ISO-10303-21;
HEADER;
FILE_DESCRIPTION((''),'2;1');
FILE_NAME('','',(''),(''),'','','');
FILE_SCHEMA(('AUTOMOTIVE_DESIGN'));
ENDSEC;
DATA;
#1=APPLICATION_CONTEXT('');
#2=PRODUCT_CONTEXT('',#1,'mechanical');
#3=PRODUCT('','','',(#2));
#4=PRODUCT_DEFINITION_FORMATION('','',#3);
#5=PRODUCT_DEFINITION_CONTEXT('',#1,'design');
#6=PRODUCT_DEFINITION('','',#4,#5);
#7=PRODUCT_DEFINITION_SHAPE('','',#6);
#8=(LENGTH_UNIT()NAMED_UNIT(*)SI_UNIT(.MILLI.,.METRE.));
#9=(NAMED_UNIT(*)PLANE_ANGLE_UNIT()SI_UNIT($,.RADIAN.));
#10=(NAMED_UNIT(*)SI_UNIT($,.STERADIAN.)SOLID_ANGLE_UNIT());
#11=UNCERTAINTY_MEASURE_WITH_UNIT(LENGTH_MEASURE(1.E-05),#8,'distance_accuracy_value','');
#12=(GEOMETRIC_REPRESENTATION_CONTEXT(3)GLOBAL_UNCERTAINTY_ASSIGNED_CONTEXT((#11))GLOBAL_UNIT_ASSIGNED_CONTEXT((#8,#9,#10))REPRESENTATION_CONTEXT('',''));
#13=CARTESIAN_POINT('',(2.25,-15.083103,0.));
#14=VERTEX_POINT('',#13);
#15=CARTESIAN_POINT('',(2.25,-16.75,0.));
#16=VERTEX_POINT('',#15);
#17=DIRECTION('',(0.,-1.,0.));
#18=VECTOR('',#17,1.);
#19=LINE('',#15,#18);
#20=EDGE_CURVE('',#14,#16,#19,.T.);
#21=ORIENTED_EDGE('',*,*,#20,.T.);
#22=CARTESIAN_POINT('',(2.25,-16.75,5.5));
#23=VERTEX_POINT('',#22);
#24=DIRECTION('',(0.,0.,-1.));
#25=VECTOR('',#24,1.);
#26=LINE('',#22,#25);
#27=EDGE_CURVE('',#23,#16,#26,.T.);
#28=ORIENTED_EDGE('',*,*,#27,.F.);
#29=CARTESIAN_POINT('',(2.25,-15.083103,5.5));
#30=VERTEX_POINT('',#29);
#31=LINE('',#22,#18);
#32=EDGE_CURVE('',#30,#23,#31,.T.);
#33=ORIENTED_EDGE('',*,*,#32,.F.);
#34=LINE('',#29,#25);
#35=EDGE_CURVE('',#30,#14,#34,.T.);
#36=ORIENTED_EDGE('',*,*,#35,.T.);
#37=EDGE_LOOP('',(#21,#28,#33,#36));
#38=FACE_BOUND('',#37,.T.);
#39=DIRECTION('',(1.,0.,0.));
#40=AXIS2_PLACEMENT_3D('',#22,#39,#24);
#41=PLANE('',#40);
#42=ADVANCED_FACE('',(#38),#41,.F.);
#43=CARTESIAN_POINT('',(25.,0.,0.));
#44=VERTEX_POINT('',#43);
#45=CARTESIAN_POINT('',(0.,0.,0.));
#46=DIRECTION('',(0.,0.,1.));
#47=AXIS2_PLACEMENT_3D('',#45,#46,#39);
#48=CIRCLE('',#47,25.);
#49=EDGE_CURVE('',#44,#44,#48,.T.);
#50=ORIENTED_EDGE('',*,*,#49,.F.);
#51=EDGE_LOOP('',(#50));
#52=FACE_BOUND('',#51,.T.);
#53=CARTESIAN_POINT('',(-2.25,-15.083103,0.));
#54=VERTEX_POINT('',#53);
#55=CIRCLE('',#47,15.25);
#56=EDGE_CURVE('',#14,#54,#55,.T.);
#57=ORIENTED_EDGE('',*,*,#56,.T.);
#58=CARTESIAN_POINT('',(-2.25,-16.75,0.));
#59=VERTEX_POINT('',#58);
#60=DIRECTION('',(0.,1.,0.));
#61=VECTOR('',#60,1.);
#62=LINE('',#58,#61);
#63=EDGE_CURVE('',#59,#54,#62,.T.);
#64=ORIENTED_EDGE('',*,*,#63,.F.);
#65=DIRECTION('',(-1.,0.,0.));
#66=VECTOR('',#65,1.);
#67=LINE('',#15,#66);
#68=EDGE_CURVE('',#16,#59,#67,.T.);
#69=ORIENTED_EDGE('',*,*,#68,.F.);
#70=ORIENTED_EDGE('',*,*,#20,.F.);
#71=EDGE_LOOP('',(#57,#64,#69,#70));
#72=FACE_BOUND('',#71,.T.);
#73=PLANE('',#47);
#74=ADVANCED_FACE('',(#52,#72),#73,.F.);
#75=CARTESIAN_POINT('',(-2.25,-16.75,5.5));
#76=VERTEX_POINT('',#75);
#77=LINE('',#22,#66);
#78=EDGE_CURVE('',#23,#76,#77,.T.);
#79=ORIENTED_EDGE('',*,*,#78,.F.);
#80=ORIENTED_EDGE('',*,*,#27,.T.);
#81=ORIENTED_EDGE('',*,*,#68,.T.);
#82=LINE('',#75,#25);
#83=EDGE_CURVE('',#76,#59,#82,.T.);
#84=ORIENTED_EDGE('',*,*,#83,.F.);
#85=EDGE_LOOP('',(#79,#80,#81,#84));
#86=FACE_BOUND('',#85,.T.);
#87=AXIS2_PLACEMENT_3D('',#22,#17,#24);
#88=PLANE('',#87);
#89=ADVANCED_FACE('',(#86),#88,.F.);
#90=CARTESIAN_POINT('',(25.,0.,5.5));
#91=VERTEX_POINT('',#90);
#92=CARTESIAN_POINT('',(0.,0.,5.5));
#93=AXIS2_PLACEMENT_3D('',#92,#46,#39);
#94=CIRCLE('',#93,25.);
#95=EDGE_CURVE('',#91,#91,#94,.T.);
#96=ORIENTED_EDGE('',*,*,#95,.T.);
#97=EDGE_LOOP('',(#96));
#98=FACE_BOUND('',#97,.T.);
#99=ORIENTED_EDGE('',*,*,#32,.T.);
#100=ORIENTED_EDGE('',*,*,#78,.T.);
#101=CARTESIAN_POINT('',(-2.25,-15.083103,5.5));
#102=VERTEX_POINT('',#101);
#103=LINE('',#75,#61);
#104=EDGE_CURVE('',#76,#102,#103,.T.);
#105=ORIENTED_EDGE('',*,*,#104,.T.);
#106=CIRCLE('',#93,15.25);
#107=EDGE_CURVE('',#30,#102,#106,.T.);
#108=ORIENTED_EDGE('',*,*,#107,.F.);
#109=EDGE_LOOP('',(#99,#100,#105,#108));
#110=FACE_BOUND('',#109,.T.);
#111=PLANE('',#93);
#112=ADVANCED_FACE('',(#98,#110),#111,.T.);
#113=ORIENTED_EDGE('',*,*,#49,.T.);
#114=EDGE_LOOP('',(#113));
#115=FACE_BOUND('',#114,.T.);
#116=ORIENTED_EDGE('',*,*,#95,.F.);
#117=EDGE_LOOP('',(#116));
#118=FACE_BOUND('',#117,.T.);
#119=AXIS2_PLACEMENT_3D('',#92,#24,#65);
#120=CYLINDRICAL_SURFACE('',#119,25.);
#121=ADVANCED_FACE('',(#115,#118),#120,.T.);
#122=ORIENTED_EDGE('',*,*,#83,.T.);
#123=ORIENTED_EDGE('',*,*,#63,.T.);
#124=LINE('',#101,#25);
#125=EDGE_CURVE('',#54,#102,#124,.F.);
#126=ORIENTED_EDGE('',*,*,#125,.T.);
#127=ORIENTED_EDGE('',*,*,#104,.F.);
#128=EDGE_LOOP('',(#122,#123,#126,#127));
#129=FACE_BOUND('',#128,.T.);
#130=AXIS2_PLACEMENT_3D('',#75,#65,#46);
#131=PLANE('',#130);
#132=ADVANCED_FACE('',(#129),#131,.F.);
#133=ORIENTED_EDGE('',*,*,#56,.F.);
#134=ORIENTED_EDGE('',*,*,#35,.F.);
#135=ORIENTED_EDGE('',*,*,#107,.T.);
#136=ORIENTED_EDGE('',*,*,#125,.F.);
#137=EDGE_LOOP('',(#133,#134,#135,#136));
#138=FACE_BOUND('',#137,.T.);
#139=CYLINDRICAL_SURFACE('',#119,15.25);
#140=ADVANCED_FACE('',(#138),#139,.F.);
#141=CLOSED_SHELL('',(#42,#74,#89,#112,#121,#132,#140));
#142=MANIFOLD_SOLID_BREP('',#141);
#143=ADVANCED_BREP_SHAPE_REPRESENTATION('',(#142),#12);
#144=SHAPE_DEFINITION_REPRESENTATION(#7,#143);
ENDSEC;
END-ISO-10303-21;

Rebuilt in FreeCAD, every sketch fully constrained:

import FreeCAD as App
import Part
import Sketcher
from FreeCAD import Vector

doc = App.newDocument("Part")
body = doc.addObject("PartDesign::Body", "Body")

# Sketch on XY plane
sketch1 = doc.addObject("Sketcher::SketchObject", "Sketch")
body.addObject(sketch1)
sketch1.AttachmentSupport = (doc.XY_Plane, [""])
sketch1.MapMode = "FlatFace"
sketch1.addGeometry(Part.Circle(Vector(0, 0, 0), Vector(0, 0, 1), 25), False)
sketch1.addGeometry(Part.Circle(Vector(0, 0, 0), Vector(0, 0, 1), 15), False)
sketch1.addConstraint(Sketcher.Constraint("Coincident", 0, 3, -1, 1))
sketch1.addConstraint(Sketcher.Constraint("Coincident", 1, 3, -1, 1))
sketch1.addConstraint(Sketcher.Constraint("Diameter", 0, 50.0))
sketch1.addConstraint(Sketcher.Constraint("Diameter", 1, 30.5))
pad1 = doc.addObject("PartDesign::Pad", "Pad")
body.addObject(pad1)
pad1.Profile = sketch1
pad1.Length = 5.5

# Sketch on XY plane
sketch2 = doc.addObject("Sketcher::SketchObject", "Sketch001")
body.addObject(sketch2)
sketch2.AttachmentSupport = (doc.XY_Plane, [""])
sketch2.MapMode = "FlatFace"
sketch2.addGeometry(Part.LineSegment(Vector(2.2, -13.8, 0), Vector(2.2, -16.8, 0)), False)
sketch2.addGeometry(Part.LineSegment(Vector(2.2, -16.8, 0), Vector(-2.2, -16.8, 0)), False)
sketch2.addGeometry(Part.LineSegment(Vector(-2.2, -16.8, 0), Vector(-2.2, -13.8, 0)), False)
sketch2.addGeometry(Part.LineSegment(Vector(-2.2, -13.8, 0), Vector(2.2, -13.8, 0)), False)
sketch2.addConstraint(Sketcher.Constraint("Coincident", 0, 2, 1, 1))
sketch2.addConstraint(Sketcher.Constraint("Coincident", 1, 2, 2, 1))
sketch2.addConstraint(Sketcher.Constraint("Coincident", 2, 2, 3, 1))
sketch2.addConstraint(Sketcher.Constraint("Coincident", 3, 2, 0, 1))
sketch2.addConstraint(Sketcher.Constraint("Vertical", 0))
sketch2.addConstraint(Sketcher.Constraint("Horizontal", 1))
sketch2.addConstraint(Sketcher.Constraint("Vertical", 2))
sketch2.addConstraint(Sketcher.Constraint("Horizontal", 3))
sketch2.addConstraint(Sketcher.Constraint("DistanceY", 0, 2, 0, 1, 3.0))
sketch2.addConstraint(Sketcher.Constraint("DistanceX", 1, 2, 1, 1, 4.5))
sketch2.addConstraint(Sketcher.Constraint("DistanceX", -1, 1, 0, 2, 2.25))
sketch2.addConstraint(Sketcher.Constraint("DistanceY", 0, 2, -1, 1, 16.75))
pocket1 = doc.addObject("PartDesign::Pocket", "Pocket")
body.addObject(pocket1)
pocket1.Profile = sketch2
pocket1.Type = "ThroughAll"
pocket1.Reversed = True

doc.recompute()
